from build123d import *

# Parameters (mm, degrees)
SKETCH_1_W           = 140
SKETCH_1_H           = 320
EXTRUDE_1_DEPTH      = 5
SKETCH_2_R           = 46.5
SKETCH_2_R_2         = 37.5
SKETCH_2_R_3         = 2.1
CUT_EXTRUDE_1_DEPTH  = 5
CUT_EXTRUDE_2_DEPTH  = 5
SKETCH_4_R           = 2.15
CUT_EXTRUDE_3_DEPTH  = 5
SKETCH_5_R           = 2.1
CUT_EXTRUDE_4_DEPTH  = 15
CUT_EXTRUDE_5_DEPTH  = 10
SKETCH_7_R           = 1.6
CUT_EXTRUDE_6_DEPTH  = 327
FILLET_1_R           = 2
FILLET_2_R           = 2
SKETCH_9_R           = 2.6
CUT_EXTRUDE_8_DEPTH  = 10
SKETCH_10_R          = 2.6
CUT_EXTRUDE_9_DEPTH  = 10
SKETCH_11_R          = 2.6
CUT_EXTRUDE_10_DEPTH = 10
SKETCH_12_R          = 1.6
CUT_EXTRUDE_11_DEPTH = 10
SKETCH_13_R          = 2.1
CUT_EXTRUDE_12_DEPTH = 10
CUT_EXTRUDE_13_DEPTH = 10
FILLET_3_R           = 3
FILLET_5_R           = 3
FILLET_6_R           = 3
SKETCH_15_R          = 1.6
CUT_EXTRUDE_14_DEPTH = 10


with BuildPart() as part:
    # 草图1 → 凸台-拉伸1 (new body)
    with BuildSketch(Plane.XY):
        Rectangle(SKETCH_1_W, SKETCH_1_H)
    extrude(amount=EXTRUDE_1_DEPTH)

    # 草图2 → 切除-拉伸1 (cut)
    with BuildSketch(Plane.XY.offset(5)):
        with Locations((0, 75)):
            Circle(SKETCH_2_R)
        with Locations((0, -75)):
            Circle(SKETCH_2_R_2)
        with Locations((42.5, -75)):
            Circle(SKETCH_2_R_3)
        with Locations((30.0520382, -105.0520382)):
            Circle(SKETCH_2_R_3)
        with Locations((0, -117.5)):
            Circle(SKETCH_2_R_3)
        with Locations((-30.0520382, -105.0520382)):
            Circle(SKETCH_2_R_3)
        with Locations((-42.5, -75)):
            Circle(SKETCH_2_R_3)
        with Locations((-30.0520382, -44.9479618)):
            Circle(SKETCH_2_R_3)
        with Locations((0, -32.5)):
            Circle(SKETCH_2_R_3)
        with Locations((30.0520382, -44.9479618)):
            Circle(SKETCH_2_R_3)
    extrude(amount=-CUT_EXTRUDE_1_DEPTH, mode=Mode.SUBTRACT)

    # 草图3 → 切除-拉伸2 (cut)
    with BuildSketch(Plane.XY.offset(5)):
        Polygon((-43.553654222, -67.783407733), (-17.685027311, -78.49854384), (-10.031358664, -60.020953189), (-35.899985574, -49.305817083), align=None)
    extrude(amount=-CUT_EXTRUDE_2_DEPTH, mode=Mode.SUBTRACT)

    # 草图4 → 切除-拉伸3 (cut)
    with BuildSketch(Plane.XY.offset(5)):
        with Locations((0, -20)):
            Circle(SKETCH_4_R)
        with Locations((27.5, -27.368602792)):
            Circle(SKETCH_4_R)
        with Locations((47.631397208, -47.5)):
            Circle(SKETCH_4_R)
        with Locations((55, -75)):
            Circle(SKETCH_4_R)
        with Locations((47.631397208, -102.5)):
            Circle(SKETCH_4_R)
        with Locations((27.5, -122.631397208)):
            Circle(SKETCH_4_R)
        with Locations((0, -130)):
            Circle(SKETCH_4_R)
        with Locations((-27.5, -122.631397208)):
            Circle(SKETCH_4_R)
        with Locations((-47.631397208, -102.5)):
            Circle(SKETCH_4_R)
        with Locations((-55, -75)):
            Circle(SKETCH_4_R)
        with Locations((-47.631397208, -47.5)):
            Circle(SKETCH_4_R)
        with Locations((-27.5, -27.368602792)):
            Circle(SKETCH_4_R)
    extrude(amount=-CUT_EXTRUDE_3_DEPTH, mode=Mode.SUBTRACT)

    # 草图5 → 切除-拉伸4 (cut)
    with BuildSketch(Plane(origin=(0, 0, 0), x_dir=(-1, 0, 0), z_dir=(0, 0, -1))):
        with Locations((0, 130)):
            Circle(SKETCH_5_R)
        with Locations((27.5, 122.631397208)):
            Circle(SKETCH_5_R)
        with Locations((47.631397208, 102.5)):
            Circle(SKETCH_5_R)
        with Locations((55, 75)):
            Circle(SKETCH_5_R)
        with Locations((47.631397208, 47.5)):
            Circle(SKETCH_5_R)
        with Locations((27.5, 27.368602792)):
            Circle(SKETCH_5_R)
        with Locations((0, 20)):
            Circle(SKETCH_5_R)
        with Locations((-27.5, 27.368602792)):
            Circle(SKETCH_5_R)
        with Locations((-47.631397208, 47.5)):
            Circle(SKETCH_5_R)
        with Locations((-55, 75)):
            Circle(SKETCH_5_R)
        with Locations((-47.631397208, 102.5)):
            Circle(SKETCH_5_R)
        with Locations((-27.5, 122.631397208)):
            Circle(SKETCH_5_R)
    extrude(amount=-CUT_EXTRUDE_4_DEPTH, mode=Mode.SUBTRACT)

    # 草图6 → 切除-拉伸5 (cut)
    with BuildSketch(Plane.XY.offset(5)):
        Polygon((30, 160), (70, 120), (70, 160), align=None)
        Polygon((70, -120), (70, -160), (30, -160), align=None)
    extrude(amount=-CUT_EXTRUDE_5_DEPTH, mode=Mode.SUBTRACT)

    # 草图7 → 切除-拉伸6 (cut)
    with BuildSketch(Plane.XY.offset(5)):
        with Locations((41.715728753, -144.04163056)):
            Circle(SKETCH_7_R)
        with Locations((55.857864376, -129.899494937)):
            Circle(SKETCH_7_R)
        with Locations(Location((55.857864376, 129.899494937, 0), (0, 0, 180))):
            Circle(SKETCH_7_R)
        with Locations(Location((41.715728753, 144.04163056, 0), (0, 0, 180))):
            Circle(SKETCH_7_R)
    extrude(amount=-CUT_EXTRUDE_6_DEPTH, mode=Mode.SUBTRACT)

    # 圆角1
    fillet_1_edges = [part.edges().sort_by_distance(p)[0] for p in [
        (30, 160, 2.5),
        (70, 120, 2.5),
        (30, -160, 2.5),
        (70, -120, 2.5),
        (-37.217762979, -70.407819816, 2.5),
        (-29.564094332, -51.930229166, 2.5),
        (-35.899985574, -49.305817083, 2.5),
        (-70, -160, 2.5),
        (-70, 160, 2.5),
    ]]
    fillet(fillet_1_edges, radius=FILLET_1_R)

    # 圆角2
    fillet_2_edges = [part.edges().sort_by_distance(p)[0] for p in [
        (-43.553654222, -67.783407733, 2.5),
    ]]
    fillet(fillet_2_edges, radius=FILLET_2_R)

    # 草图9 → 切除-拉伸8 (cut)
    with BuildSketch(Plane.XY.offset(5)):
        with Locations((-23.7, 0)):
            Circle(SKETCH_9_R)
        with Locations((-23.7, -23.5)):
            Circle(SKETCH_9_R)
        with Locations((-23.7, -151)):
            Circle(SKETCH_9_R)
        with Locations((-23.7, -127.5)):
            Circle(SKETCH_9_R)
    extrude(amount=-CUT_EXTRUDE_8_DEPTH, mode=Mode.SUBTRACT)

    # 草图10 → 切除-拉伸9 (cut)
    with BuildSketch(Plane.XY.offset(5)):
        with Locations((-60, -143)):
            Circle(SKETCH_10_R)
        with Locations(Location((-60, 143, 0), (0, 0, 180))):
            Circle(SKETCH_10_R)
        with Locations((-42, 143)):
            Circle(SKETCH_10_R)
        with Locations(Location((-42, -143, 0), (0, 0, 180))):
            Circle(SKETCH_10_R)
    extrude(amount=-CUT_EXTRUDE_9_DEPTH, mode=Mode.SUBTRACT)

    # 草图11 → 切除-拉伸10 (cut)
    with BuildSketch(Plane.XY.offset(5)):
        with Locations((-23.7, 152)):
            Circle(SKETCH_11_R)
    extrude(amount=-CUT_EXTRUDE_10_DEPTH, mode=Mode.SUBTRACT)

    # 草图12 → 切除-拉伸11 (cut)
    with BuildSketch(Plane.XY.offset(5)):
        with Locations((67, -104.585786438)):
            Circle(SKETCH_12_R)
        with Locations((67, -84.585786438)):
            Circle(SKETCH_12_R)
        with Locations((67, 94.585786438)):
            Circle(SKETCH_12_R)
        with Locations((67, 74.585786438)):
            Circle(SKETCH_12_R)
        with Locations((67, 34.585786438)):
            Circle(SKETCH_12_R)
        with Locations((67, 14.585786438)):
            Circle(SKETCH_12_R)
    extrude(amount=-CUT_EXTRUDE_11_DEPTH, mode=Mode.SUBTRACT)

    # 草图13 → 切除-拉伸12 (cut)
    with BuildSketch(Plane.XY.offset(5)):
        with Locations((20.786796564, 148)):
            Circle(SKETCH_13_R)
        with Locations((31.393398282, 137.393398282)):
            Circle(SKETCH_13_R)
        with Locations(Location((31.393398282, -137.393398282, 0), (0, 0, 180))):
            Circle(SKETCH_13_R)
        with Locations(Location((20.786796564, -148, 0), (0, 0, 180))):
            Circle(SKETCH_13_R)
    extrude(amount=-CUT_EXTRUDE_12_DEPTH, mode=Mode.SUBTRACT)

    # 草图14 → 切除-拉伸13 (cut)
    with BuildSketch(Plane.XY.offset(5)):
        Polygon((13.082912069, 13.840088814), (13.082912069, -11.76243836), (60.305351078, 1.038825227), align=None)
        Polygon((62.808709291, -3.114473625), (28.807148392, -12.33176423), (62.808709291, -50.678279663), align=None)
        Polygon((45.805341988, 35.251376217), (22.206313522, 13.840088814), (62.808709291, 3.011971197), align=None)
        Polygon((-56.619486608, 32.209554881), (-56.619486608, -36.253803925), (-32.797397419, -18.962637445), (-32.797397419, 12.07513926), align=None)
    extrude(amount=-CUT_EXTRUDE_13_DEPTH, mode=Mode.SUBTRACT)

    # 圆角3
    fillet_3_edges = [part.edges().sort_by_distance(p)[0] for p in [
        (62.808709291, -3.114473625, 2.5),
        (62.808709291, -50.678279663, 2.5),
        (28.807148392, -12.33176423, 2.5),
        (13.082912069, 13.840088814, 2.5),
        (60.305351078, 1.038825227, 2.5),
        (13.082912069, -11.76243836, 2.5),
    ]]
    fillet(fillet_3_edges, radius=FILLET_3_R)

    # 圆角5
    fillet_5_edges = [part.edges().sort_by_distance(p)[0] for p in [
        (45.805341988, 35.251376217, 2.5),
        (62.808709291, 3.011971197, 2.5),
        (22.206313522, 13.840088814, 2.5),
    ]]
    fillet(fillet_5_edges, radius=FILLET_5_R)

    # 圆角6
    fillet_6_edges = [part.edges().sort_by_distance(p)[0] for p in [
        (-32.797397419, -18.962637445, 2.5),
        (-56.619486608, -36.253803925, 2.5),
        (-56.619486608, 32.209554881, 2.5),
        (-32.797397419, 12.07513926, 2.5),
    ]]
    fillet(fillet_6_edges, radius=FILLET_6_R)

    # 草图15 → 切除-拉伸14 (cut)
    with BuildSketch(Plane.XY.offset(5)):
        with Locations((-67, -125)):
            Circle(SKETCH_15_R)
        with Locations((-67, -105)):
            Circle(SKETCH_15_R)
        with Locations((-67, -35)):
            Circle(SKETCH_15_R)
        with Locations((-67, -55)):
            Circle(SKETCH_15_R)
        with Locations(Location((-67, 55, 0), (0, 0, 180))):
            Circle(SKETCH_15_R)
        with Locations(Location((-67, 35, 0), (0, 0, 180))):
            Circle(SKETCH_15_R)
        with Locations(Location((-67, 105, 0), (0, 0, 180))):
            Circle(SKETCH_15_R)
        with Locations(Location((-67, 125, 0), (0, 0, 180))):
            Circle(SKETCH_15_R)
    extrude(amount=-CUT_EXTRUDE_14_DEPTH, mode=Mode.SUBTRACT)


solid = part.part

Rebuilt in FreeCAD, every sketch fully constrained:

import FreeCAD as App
import Part
import Sketcher

V = App.Vector
Q = App.Units.Quantity


def edges_at(feature, points):
    """Names of the edges that pass closest to the given points."""
    edges = feature.Shape.Edges
    near = lambda p: min(range(len(edges)), key=lambda i: edges[i].distToShape(Part.Vertex(*p))[0])
    return sorted({f"Edge{near(p) + 1}" for p in points})


def add_polygon(sketch, points):
    """Adds a closed chain of lines whose ends are joined by coincident constraints."""
    first, n = sketch.GeometryCount, len(points)
    for a, b in zip(points, points[1:] + points[:1]):
        sketch.addGeometry(Part.LineSegment(App.Vector(*a, 0), App.Vector(*b, 0)), False)
    for i in range(n):
        sketch.addConstraint(Sketcher.Constraint("Coincident", first + i, 2, first + (i + 1) % n, 1))

doc = App.newDocument("Part")
body = doc.addObject("PartDesign::Body", "Body")

sketch1 = body.newObject("Sketcher::SketchObject", "Sketch")
sketch1.AttachmentSupport = (doc.getObject("XY_Plane"), [""])
sketch1.MapMode = "FlatFace"
add_polygon(sketch1, [(-70, 160), (-70, -160), (70, -160), (70, 160)])
sketch1.addConstraint([
    Sketcher.Constraint("Vertical", 0),
    Sketcher.Constraint("Horizontal", 1),
    Sketcher.Constraint("Vertical", 2),
    Sketcher.Constraint("Horizontal", 3),
    Sketcher.Constraint("Symmetric", 0, 2, 2, 2, -1, 1),
    Sketcher.Constraint("DistanceX", 1, 1, 1, 2, 140.0),
    Sketcher.Constraint("DistanceY", 0, 2, 0, 1, 320.0),
])
pad1 = body.newObject("PartDesign::Pad", "Pad")
pad1.Profile = sketch1
pad1.Length = 5

sketch2 = body.newObject("Sketcher::SketchObject", "Sketch001")
sketch2.AttachmentSupport = (doc.getObject("XY_Plane"), [""])
sketch2.MapMode = "FlatFace"
sketch2.AttachmentOffset = App.Placement(V(0, 0, 5), App.Rotation())
sketch2.addGeometry([
    Part.Circle(V(0, 75, 0), V(0, 0, 1), 46.5),
    Part.Circle(V(0, -75, 0), V(0, 0, 1), 37.5),
    Part.Circle(V(42.5, -75, 0), V(0, 0, 1), 2.1),
    Part.Circle(V(30.1, -105.1, 0), V(0, 0, 1), 2.1),
    Part.Circle(V(0, -117.5, 0), V(0, 0, 1), 2.1),
    Part.Circle(V(-30.1, -105.1, 0), V(0, 0, 1), 2.1),
    Part.Circle(V(-42.5, -75, 0), V(0, 0, 1), 2.1),
    Part.Circle(V(-30.1, -44.9, 0), V(0, 0, 1), 2.1),
    Part.Circle(V(0, -32.5, 0), V(0, 0, 1), 2.1),
    Part.Circle(V(30.1, -44.9, 0), V(0, 0, 1), 2.1),
], False)
sketch2.addConstraint([
    Sketcher.Constraint("Equal", 2, 3),
    Sketcher.Constraint("Equal", 3, 4),
    Sketcher.Constraint("Equal", 4, 5),
    Sketcher.Constraint("Equal", 5, 6),
    Sketcher.Constraint("Equal", 6, 7),
    Sketcher.Constraint("Equal", 7, 8),
    Sketcher.Constraint("Equal", 8, 9),
    Sketcher.Constraint("Symmetric", 0, 3, 1, 3, -1, 1),
    Sketcher.Constraint("Symmetric", 3, 3, 5, 3, -2),
    Sketcher.Constraint("Symmetric", 2, 3, 6, 3, -2),
    Sketcher.Constraint("Symmetric", 7, 3, 9, 3, -2),
    Sketcher.Constraint("PointOnObject", 0, 3, -2),
    Sketcher.Constraint("PointOnObject", 4, 3, -2),
    Sketcher.Constraint("PointOnObject", 8, 3, -2),
    Sketcher.Constraint("Horizontal", 1, 3, 2, 3),
    Sketcher.Constraint("Vertical", 5, 3, 7, 3),
    Sketcher.Constraint("Diameter", 0, 93.0),
    Sketcher.Constraint("Diameter", 1, 75.0),
    Sketcher.Constraint("Diameter", 2, 4.2),
    Sketcher.Constraint("DistanceY", -1, 1, 0, 3, 75.0),
    Sketcher.Constraint("DistanceX", 6, 3, 2, 3, 85.0),
    Sketcher.Constraint("DistanceY", 4, 3, -1, 1, 117.5),
    Sketcher.Constraint("DistanceY", 8, 3, -1, 1, 32.5),
    Sketcher.Constraint("DistanceX", -1, 1, 3, 3, 30.052038),
    Sketcher.Constraint("DistanceY", 3, 3, -1, 1, 105.052038),
    Sketcher.Constraint("DistanceY", 7, 3, -1, 1, 44.947962),
])
pocket1 = body.newObject("PartDesign::Pocket", "Pocket")
pocket1.Profile = sketch2
pocket1.Length = 5

sketch3 = body.newObject("Sketcher::SketchObject", "Sketch002")
sketch3.AttachmentSupport = (doc.getObject("XY_Plane"), [""])
sketch3.MapMode = "FlatFace"
sketch3.AttachmentOffset = App.Placement(V(0, 0, 5), App.Rotation())
add_polygon(sketch3, [(-44, -68), (-18, -78), (-10, -60), (-36, -49)])
sketch3.addConstraint([
    Sketcher.Constraint("Perpendicular", 0, 1),
    Sketcher.Constraint("Perpendicular", 1, 2),
    Sketcher.Constraint("Perpendicular", 2, 3),
    Sketcher.Constraint("Distance", 0, 28.0),
    Sketcher.Constraint("Distance", 1, 20.0),
    Sketcher.Constraint("Angle", 0, Q("-22.5 deg")),
    Sketcher.Constraint("DistanceX", 1, 2, -1, 1, 10.031359),
    Sketcher.Constraint("DistanceY", 0, 2, -1, 1, 78.498544),
])
pocket2 = body.newObject("PartDesign::Pocket", "Pocket001")
pocket2.Profile = sketch3
pocket2.Length = 5

sketch4 = body.newObject("Sketcher::SketchObject", "Sketch003")
sketch4.AttachmentSupport = (doc.getObject("XY_Plane"), [""])
sketch4.MapMode = "FlatFace"
sketch4.AttachmentOffset = App.Placement(V(0, 0, 5), App.Rotation())
sketch4.addGeometry([
    Part.Circle(V(0, -20, 0), V(0, 0, 1), 2.1),
    Part.Circle(V(27.5, -27.4, 0), V(0, 0, 1), 2.1),
    Part.Circle(V(47.6, -47.5, 0), V(0, 0, 1), 2.1),
    Part.Circle(V(55, -75, 0), V(0, 0, 1), 2.1),
    Part.Circle(V(47.6, -102.5, 0), V(0, 0, 1), 2.1),
    Part.Circle(V(27.5, -122.6, 0), V(0, 0, 1), 2.1),
    Part.Circle(V(0, -130, 0), V(0, 0, 1), 2.1),
    Part.Circle(V(-27.5, -122.6, 0), V(0, 0, 1), 2.1),
    Part.Circle(V(-47.6, -102.5, 0), V(0, 0, 1), 2.1),
    Part.Circle(V(-55, -75, 0), V(0, 0, 1), 2.1),
    Part.Circle(V(-47.6, -47.5, 0), V(0, 0, 1), 2.1),
    Part.Circle(V(-27.5, -27.4, 0), V(0, 0, 1), 2.1),
], False)
sketch4.addConstraint([
    Sketcher.Constraint("Equal", 0, 1),
    Sketcher.Constraint("Equal", 1, 2),
    Sketcher.Constraint("Equal", 2, 3),
    Sketcher.Constraint("Equal", 3, 4),
    Sketcher.Constraint("Equal", 4, 5),
    Sketcher.Constraint("Equal", 5, 6),
    Sketcher.Constraint("Equal", 6, 7),
    Sketcher.Constraint("Equal", 7, 8),
    Sketcher.Constraint("Equal", 8, 9),
    Sketcher.Constraint("Equal", 9, 10),
    Sketcher.Constraint("Equal", 10, 11),
    Sketcher.Constraint("Symmetric", 5, 3, 7, 3, -2),
    Sketcher.Constraint("Symmetric", 4, 3, 8, 3, -2),
    Sketcher.Constraint("Symmetric", 3, 3, 9, 3, -2),
    Sketcher.Constraint("Symmetric", 2, 3, 10, 3, -2),
    Sketcher.Constraint("Symmetric", 1, 3, 11, 3, -2),
    Sketcher.Constraint("PointOnObject", 0, 3, -2),
    Sketcher.Constraint("PointOnObject", 6, 3, -2),
    Sketcher.Constraint("Vertical", 2, 3, 4, 3),
    Sketcher.Constraint("Vertical", 1, 3, 5, 3),
    Sketcher.Constraint("Diameter", 0, 4.3),
    Sketcher.Constraint("DistanceY", 0, 3, -1, 1, 20.0),
    Sketcher.Constraint("DistanceX", -1, 1, 3, 3, 55.0),
    Sketcher.Constraint("DistanceY", 3, 3, -1, 1, 75.0),
    Sketcher.Constraint("DistanceY", 6, 3, -1, 1, 130.0),
    Sketcher.Constraint("DistanceY", 4, 3, 2, 3, 55.0),
    Sketcher.Constraint("DistanceX", 7, 3, 5, 3, 55.0),
    Sketcher.Constraint("DistanceY", 2, 3, -1, 1, 47.5),
    Sketcher.Constraint("DistanceY", 1, 3, -1, 1, 27.368603),
    Sketcher.Constraint("DistanceX", -1, 1, 2, 3, 47.631397),
    Sketcher.Constraint("DistanceY", 5, 3, -1, 1, 122.631397),
])
pocket3 = body.newObject("PartDesign::Pocket", "Pocket002")
pocket3.Profile = sketch4
pocket3.Length = 5

sketch5 = body.newObject("Sketcher::SketchObject", "Sketch004")
sketch5.AttachmentSupport = (doc.getObject("XY_Plane"), [""])
sketch5.MapMode = "FlatFace"
sketch5.addGeometry([
    Part.Circle(V(0, 130, 0), V(0, 0, 1), 2.1),
    Part.Circle(V(-27.5, 122.6, 0), V(0, 0, 1), 2.1),
    Part.Circle(V(-47.6, 102.5, 0), V(0, 0, 1), 2.1),
    Part.Circle(V(-55, 75, 0), V(0, 0, 1), 2.1),
    Part.Circle(V(-47.6, 47.5, 0), V(0, 0, 1), 2.1),
    Part.Circle(V(-27.5, 27.4, 0), V(0, 0, 1), 2.1),
    Part.Circle(V(0, 20, 0), V(0, 0, 1), 2.1),
    Part.Circle(V(27.5, 27.4, 0), V(0, 0, 1), 2.1),
    Part.Circle(V(47.6, 47.5, 0), V(0, 0, 1), 2.1),
    Part.Circle(V(55, 75, 0), V(0, 0, 1), 2.1),
    Part.Circle(V(47.6, 102.5, 0), V(0, 0, 1), 2.1),
    Part.Circle(V(27.5, 122.6, 0), V(0, 0, 1), 2.1),
], False)
sketch5.addConstraint([
    Sketcher.Constraint("Equal", 0, 1),
    Sketcher.Constraint("Equal", 1, 2),
    Sketcher.Constraint("Equal", 2, 3),
    Sketcher.Constraint("Equal", 3, 4),
    Sketcher.Constraint("Equal", 4, 5),
    Sketcher.Constraint("Equal", 5, 6),
    Sketcher.Constraint("Equal", 6, 7),
    Sketcher.Constraint("Equal", 7, 8),
    Sketcher.Constraint("Equal", 8, 9),
    Sketcher.Constraint("Equal", 9, 10),
    Sketcher.Constraint("Equal", 10, 11),
    Sketcher.Constraint("Symmetric", 5, 3, 7, 3, -2),
    Sketcher.Constraint("Symmetric", 4, 3, 8, 3, -2),
    Sketcher.Constraint("Symmetric", 3, 3, 9, 3, -2),
    Sketcher.Constraint("Symmetric", 2, 3, 10, 3, -2),
    Sketcher.Constraint("Symmetric", 1, 3, 11, 3, -2),
    Sketcher.Constraint("PointOnObject", 0, 3, -2),
    Sketcher.Constraint("PointOnObject", 6, 3, -2),
    Sketcher.Constraint("Vertical", 2, 3, 4, 3),
    Sketcher.Constraint("Vertical", 1, 3, 5, 3),
    Sketcher.Constraint("Diameter", 0, 4.2),
    Sketcher.Constraint("DistanceY", -1, 1, 0, 3, 130.0),
    Sketcher.Constraint("DistanceX", 3, 3, -1, 1, 55.0),
    Sketcher.Constraint("DistanceY", -1, 1, 3, 3, 75.0),
    Sketcher.Constraint("DistanceY", -1, 1, 6, 3, 20.0),
    Sketcher.Constraint("DistanceY", 4, 3, 2, 3, 55.0),
    Sketcher.Constraint("DistanceX", 5, 3, 7, 3, 55.0),
    Sketcher.Constraint("DistanceY", -1, 1, 2, 3, 102.5),
    Sketcher.Constraint("DistanceY", -1, 1, 1, 3, 122.631397),
    Sketcher.Constraint("DistanceX", 2, 3, -1, 1, 47.631397),
    Sketcher.Constraint("DistanceY", -1, 1, 5, 3, 27.368603),
])
pocket4 = body.newObject("PartDesign::Pocket", "Pocket003")
pocket4.Profile = sketch5
pocket4.Length = 15
pocket4.Reversed = True

sketch6 = body.newObject("Sketcher::SketchObject", "Sketch005")
sketch6.AttachmentSupport = (doc.getObject("XY_Plane"), [""])
sketch6.MapMode = "FlatFace"
sketch6.AttachmentOffset = App.Placement(V(0, 0, 5), App.Rotation())
add_polygon(sketch6, [(30, 160), (70, 120), (70, 160)])
add_polygon(sketch6, [(70, -160), (70, -120), (30, -160)])
sketch6.addConstraint([
    Sketcher.Constraint("Vertical", 1),
    Sketcher.Constraint("Horizontal", 2),
    Sketcher.Constraint("Vertical", 3),
    Sketcher.Constraint("Horizontal", 5),
    Sketcher.Constraint("Symmetric", 0, 2, 3, 2, -1),
    Sketcher.Constraint("Symmetric", 2, 2, 4, 2, -1),
    Sketcher.Constraint("Perpendicular", 0, 4),
    Sketcher.Constraint("DistanceX", 2, 2, 2, 1, 40.0),
    Sketcher.Constraint("DistanceX", -1, 1, 0, 2, 70.0),
    Sketcher.Constraint("DistanceY", -1, 1, 0, 2, 120.0),
])
pocket5 = body.newObject("PartDesign::Pocket", "Pocket004")
pocket5.Profile = sketch6
pocket5.Length = 10

sketch7 = body.newObject("Sketcher::SketchObject", "Sketch006")
sketch7.AttachmentSupport = (doc.getObject("XY_Plane"), [""])
sketch7.MapMode = "FlatFace"
sketch7.AttachmentOffset = App.Placement(V(0, 0, 5), App.Rotation())
sketch7.addGeometry([
    Part.Circle(V(41.7, -144, 0), V(0, 0, 1), 1.6),
    Part.Circle(V(55.9, -129.9, 0), V(0, 0, 1), 1.6),
    Part.Circle(V(55.9, 129.9, 0), V(0, 0, 1), 1.6),
    Part.Circle(V(41.7, 144, 0), V(0, 0, 1), 1.6),
], False)
sketch7.addConstraint([
    Sketcher.Constraint("Equal", 0, 1),
    Sketcher.Constraint("Equal", 1, 2),
    Sketcher.Constraint("Equal", 2, 3),
    Sketcher.Constraint("Symmetric", 1, 3, 2, 3, -1),
    Sketcher.Constraint("Symmetric", 0, 3, 3, 3, -1),
    Sketcher.Constraint("Diameter", 0, 3.2),
    Sketcher.Constraint("DistanceX", -1, 1, 0, 3, 41.715729),
    Sketcher.Constraint("DistanceY", 0, 3, -1, 1, 144.041631),
    Sketcher.Constraint("DistanceY", 1, 3, 2, 3, 259.79899),
    Sketcher.Constraint("DistanceX", -1, 1, 1, 3, 55.857864),
])
pocket6 = body.newObject("PartDesign::Pocket", "Pocket005")
pocket6.Profile = sketch7
pocket6.Length = 327
doc.recompute()

fillet = body.newObject("PartDesign::Fillet", "Fillet")
fillet.Base = (pocket6, edges_at(pocket6, [
    (30, 160, 2.5),
    (70, 120, 2.5),
    (30, -160, 2.5),
    (70, -120, 2.5),
    (-37.218, -70.408, 2.5),
    (-29.564, -51.93, 2.5),
    (-35.9, -49.306, 2.5),
    (-70, -160, 2.5),
    (-70, 160, 2.5),
]))
fillet.Radius = 2
doc.recompute()

fillet2 = body.newObject("PartDesign::Fillet", "Fillet001")
fillet2.Base = (fillet, edges_at(fillet, [(-43.554, -67.783, 2.5)]))
fillet2.Radius = 2

sketch8 = body.newObject("Sketcher::SketchObject", "Sketch007")
sketch8.AttachmentSupport = (doc.getObject("XY_Plane"), [""])
sketch8.MapMode = "FlatFace"
sketch8.AttachmentOffset = App.Placement(V(0, 0, 5), App.Rotation())
sketch8.addGeometry([
    Part.Circle(V(-23.7, 0, 0), V(0, 0, 1), 2.6),
    Part.Circle(V(-23.7, -23.5, 0), V(0, 0, 1), 2.6),
    Part.Circle(V(-23.7, -151, 0), V(0, 0, 1), 2.6),
    Part.Circle(V(-23.7, -127.5, 0), V(0, 0, 1), 2.6),
], False)
sketch8.addConstraint([
    Sketcher.Constraint("Equal", 0, 1),
    Sketcher.Constraint("Equal", 1, 2),
    Sketcher.Constraint("Equal", 2, 3),
    Sketcher.Constraint("PointOnObject", 0, 3, -1),
    Sketcher.Constraint("Vertical", 0, 3, 1, 3),
    Sketcher.Constraint("Vertical", 1, 3, 2, 3),
    Sketcher.Constraint("Vertical", 2, 3, 3, 3),
    Sketcher.Constraint("Diameter", 0, 5.2),
    Sketcher.Constraint("DistanceY", 2, 3, -1, 1, 151.0),
    Sketcher.Constraint("DistanceY", 3, 3, 1, 3, 104.0),
    Sketcher.Constraint("DistanceX", 0, 3, -1, 1, 23.7),
    Sketcher.Constraint("DistanceY", 1, 3, -1, 1, 23.5),
])
pocket7 = body.newObject("PartDesign::Pocket", "Pocket006")
pocket7.Profile = sketch8
pocket7.Length = 10

sketch9 = body.newObject("Sketcher::SketchObject", "Sketch008")
sketch9.AttachmentSupport = (doc.getObject("XY_Plane"), [""])
sketch9.MapMode = "FlatFace"
sketch9.AttachmentOffset = App.Placement(V(0, 0, 5), App.Rotation())
sketch9.addGeometry([
    Part.Circle(V(-60, -143, 0), V(0, 0, 1), 2.6),
    Part.Circle(V(-60, 143, 0), V(0, 0, 1), 2.6),
    Part.Circle(V(-42, 143, 0), V(0, 0, 1), 2.6),
    Part.Circle(V(-42, -143, 0), V(0, 0, 1), 2.6),
], False)
sketch9.addConstraint([
    Sketcher.Constraint("Equal", 0, 1),
    Sketcher.Constraint("Equal", 1, 2),
    Sketcher.Constraint("Equal", 2, 3),
    Sketcher.Constraint("Symmetric", 0, 3, 1, 3, -1),
    Sketcher.Constraint("Symmetric", 2, 3, 3, 3, -1),
    Sketcher.Constraint("Horizontal", 1, 3, 2, 3),
    Sketcher.Constraint("Diameter", 0, 5.2),
    Sketcher.Constraint("DistanceX", 0, 3, -1, 1, 60.0),
    Sketcher.Constraint("DistanceY", 0, 3, -1, 1, 143.0),
    Sketcher.Constraint("DistanceX", 2, 3, -1, 1, 42.0),
])
pocket8 = body.newObject("PartDesign::Pocket", "Pocket007")
pocket8.Profile = sketch9
pocket8.Length = 10

sketch10 = body.newObject("Sketcher::SketchObject", "Sketch009")
sketch10.AttachmentSupport = (doc.getObject("XY_Plane"), [""])
sketch10.MapMode = "FlatFace"
sketch10.AttachmentOffset = App.Placement(V(0, 0, 5), App.Rotation())
sketch10.addGeometry(Part.Circle(V(-23.7, 152, 0), V(0, 0, 1), 2.6), False)
sketch10.addConstraint([
    Sketcher.Constraint("Diameter", 0, 5.2),
    Sketcher.Constraint("DistanceY", -1, 1, 0, 3, 152.0),
    Sketcher.Constraint("DistanceX", 0, 3, -1, 1, 23.7),
])
pocket9 = body.newObject("PartDesign::Pocket", "Pocket008")
pocket9.Profile = sketch10
pocket9.Length = 10

sketch11 = body.newObject("Sketcher::SketchObject", "Sketch010")
sketch11.AttachmentSupport = (doc.getObject("XY_Plane"), [""])
sketch11.MapMode = "FlatFace"
sketch11.AttachmentOffset = App.Placement(V(0, 0, 5), App.Rotation())
sketch11.addGeometry([
    Part.Circle(V(67, -104.6, 0), V(0, 0, 1), 1.6),
    Part.Circle(V(67, -84.6, 0), V(0, 0, 1), 1.6),
    Part.Circle(V(67, 94.6, 0), V(0, 0, 1), 1.6),
    Part.Circle(V(67, 74.6, 0), V(0, 0, 1), 1.6),
    Part.Circle(V(67, 34.6, 0), V(0, 0, 1), 1.6),
    Part.Circle(V(67, 14.6, 0), V(0, 0, 1), 1.6),
], False)
sketch11.addConstraint([
    Sketcher.Constraint("Equal", 0, 1),
    Sketcher.Constraint("Equal", 1, 2),
    Sketcher.Constraint("Equal", 2, 3),
    Sketcher.Constraint("Equal", 3, 4),
    Sketcher.Constraint("Equal", 4, 5),
    Sketcher.Constraint("Vertical", 0, 3, 1, 3),
    Sketcher.Constraint("Vertical", 1, 3, 2, 3),
    Sketcher.Constraint("Vertical", 2, 3, 3, 3),
    Sketcher.Constraint("Vertical", 3, 3, 4, 3),
    Sketcher.Constraint("Vertical", 4, 3, 5, 3),
    Sketcher.Constraint("Diameter", 0, 3.2),
    Sketcher.Constraint("DistanceX", -1, 1, 0, 3, 67.0),
    Sketcher.Constraint("DistanceY", 0, 3, 1, 3, 20.0),
    Sketcher.Constraint("DistanceY", 3, 3, 2, 3, 20.0),
    Sketcher.Constraint("DistanceY", 4, 3, 3, 3, 40.0),
    Sketcher.Constraint("DistanceY", 5, 3, 4, 3, 20.0),
    Sketcher.Constraint("DistanceY", 0, 3, -1, 1, 104.585786),
    Sketcher.Constraint("DistanceY", -1, 1, 2, 3, 94.585786),
])
pocket10 = body.newObject("PartDesign::Pocket", "Pocket009")
pocket10.Profile = sketch11
pocket10.Length = 10

sketch12 = body.newObject("Sketcher::SketchObject", "Sketch011")
sketch12.AttachmentSupport = (doc.getObject("XY_Plane"), [""])
sketch12.MapMode = "FlatFace"
sketch12.AttachmentOffset = App.Placement(V(0, 0, 5), App.Rotation())
sketch12.addGeometry([
    Part.Circle(V(20.8, 148, 0), V(0, 0, 1), 2.1),
    Part.Circle(V(31.4, 137.4, 0), V(0, 0, 1), 2.1),
    Part.Circle(V(31.4, -137.4, 0), V(0, 0, 1), 2.1),
    Part.Circle(V(20.8, -148, 0), V(0, 0, 1), 2.1),
], False)
sketch12.addConstraint([
    Sketcher.Constraint("Equal", 0, 1),
    Sketcher.Constraint("Equal", 1, 2),
    Sketcher.Constraint("Equal", 2, 3),
    Sketcher.Constraint("Symmetric", 1, 3, 2, 3, -1),
    Sketcher.Constraint("Symmetric", 0, 3, 3, 3, -1),
    Sketcher.Constraint("Diameter", 0, 4.2),
    Sketcher.Constraint("DistanceY", -1, 1, 0, 3, 148.0),
    Sketcher.Constraint("DistanceX", -1, 1, 1, 3, 31.393398),
    Sketcher.Constraint("DistanceY", -1, 1, 1, 3, 137.393398),
    Sketcher.Constraint("DistanceX", 0, 3, 1, 3, 10.606602),
])
pocket11 = body.newObject("PartDesign::Pocket", "Pocket010")
pocket11.Profile = sketch12
pocket11.Length = 10

sketch13 = body.newObject("Sketcher::SketchObject", "Sketch012")
sketch13.AttachmentSupport = (doc.getObject("XY_Plane"), [""])
sketch13.MapMode = "FlatFace"
sketch13.AttachmentOffset = App.Placement(V(0, 0, 5), App.Rotation())
add_polygon(sketch13, [(13, 14), (13, -12), (60, 1)])
add_polygon(sketch13, [(63, -3), (29, -12), (63, -51)])
add_polygon(sketch13, [(46, 35), (22, 14), (63, 3)])
add_polygon(sketch13, [(-57, 32), (-57, -36), (-33, -19), (-33, 12)])
sketch13.addConstraint([
    Sketcher.Constraint("Vertical", 0),
    Sketcher.Constraint("Vertical", 5),
    Sketcher.Constraint("Vertical", 9),
    Sketcher.Constraint("Vertical", 11),
    Sketcher.Constraint("Parallel", 1, 3),
    Sketcher.Constraint("Horizontal", 2, 2, 6, 2),
    Sketcher.Constraint("Vertical", 5, 2, 7, 2),
    Sketcher.Constraint("Equal", 1, 2),
    Sketcher.Constraint("DistanceY", 9, 2, 9, 1, 68.463359),
    Sketcher.Constraint("DistanceY", 5, 2, 1, 2, 4.153299),
    Sketcher.Constraint("DistanceX", 2, 2, 6, 2, 9.123401),
    Sketcher.Constraint("DistanceX", 9, 2, 0, 2, 69.702399),
    Sketcher.Constraint("DistanceY", 10, 2, 0, 2, 7.200199),
    Sketcher.Constraint("Distance", 4, 51.249989),
    Sketcher.Constraint("Distance", 8, 36.448508),
    Sketcher.Constraint("Distance", 10, 29.435971),
    Sketcher.Constraint("Distance", 12, 31.191131),
    Sketcher.Constraint("DistanceY", 0, 2, 0, 1, 25.602527),
    Sketcher.Constraint("DistanceY", 5, 1, 5, 2, 47.563806),
    Sketcher.Constraint("DistanceY", 11, 1, 11, 2, 31.037777),
    Sketcher.Constraint("DistanceY", 0, 2, -1, 1, 11.762438),
    Sketcher.Constraint("DistanceX", -1, 1, 1, 2, 60.305351),
    Sketcher.Constraint("DistanceX", -1, 1, 3, 2, 28.807148),
    Sketcher.Constraint("DistanceX", -1, 1, 4, 2, 62.808709),
    Sketcher.Constraint("DistanceY", -1, 1, 7, 2, 3.011971),
    Sketcher.Constraint("DistanceX", -1, 1, 8, 2, 45.805342),
])
pocket12 = body.newObject("PartDesign::Pocket", "Pocket011")
pocket12.Profile = sketch13
pocket12.Length = 10
doc.recompute()

fillet3 = body.newObject("PartDesign::Fillet", "Fillet002")
fillet3.Base = (pocket12, edges_at(pocket12, [
    (62.809, -3.114, 2.5),
    (62.809, -50.678, 2.5),
    (28.807, -12.332, 2.5),
    (13.083, 13.84, 2.5),
    (60.305, 1.039, 2.5),
    (13.083, -11.762, 2.5),
]))
fillet3.Radius = 3
doc.recompute()

fillet4 = body.newObject("PartDesign::Fillet", "Fillet003")
fillet4.Base = (fillet3, edges_at(fillet3, [(45.805, 35.251, 2.5), (62.809, 3.012, 2.5), (22.206, 13.84, 2.5)]))
fillet4.Radius = 3
doc.recompute()

fillet5 = body.newObject("PartDesign::Fillet", "Fillet004")
fillet5.Base = (fillet4, edges_at(fillet4, [
    (-32.797, -18.963, 2.5),
    (-56.619, -36.254, 2.5),
    (-56.619, 32.21, 2.5),
    (-32.797, 12.075, 2.5),
]))
fillet5.Radius = 3

sketch14 = body.newObject("Sketcher::SketchObject", "Sketch013")
sketch14.AttachmentSupport = (doc.getObject("XY_Plane"), [""])
sketch14.MapMode = "FlatFace"
sketch14.AttachmentOffset = App.Placement(V(0, 0, 5), App.Rotation())
sketch14.addGeometry([
    Part.Circle(V(-67, -125, 0), V(0, 0, 1), 1.6),
    Part.Circle(V(-67, -105, 0), V(0, 0, 1), 1.6),
    Part.Circle(V(-67, -35, 0), V(0, 0, 1), 1.6),
    Part.Circle(V(-67, -55, 0), V(0, 0, 1), 1.6),
    Part.Circle(V(-67, 55, 0), V(0, 0, 1), 1.6),
    Part.Circle(V(-67, 35, 0), V(0, 0, 1), 1.6),
    Part.Circle(V(-67, 105, 0), V(0, 0, 1), 1.6),
    Part.Circle(V(-67, 125, 0), V(0, 0, 1), 1.6),
], False)
sketch14.addConstraint([
    Sketcher.Constraint("Equal", 0, 1),
    Sketcher.Constraint("Equal", 1, 2),
    Sketcher.Constraint("Equal", 2, 3),
    Sketcher.Constraint("Equal", 3, 4),
    Sketcher.Constraint("Equal", 4, 5),
    Sketcher.Constraint("Equal", 5, 6),
    Sketcher.Constraint("Equal", 6, 7),
    Sketcher.Constraint("Symmetric", 3, 3, 4, 3, -1),
    Sketcher.Constraint("Symmetric", 2, 3, 5, 3, -1),
    Sketcher.Constraint("Symmetric", 1, 3, 6, 3, -1),
    Sketcher.Constraint("Symmetric", 0, 3, 7, 3, -1),
    Sketcher.Constraint("Vertical", 0, 3, 1, 3),
    Sketcher.Constraint("Vertical", 1, 3, 2, 3),
    Sketcher.Constraint("Vertical", 2, 3, 3, 3),
    Sketcher.Constraint("Diameter", 0, 3.2),
    Sketcher.Constraint("DistanceX", 0, 3, -1, 1, 67.0),
    Sketcher.Constraint("DistanceY", 0, 3, -1, 1, 125.0),
    Sketcher.Constraint("DistanceY", 1, 3, -1, 1, 105.0),
    Sketcher.Constraint("DistanceY", 2, 3, -1, 1, 35.0),
    Sketcher.Constraint("DistanceY", 3, 3, -1, 1, 55.0),
])
pocket13 = body.newObject("PartDesign::Pocket", "Pocket012")
pocket13.Profile = sketch14
pocket13.Length = 10

doc.recompute()
